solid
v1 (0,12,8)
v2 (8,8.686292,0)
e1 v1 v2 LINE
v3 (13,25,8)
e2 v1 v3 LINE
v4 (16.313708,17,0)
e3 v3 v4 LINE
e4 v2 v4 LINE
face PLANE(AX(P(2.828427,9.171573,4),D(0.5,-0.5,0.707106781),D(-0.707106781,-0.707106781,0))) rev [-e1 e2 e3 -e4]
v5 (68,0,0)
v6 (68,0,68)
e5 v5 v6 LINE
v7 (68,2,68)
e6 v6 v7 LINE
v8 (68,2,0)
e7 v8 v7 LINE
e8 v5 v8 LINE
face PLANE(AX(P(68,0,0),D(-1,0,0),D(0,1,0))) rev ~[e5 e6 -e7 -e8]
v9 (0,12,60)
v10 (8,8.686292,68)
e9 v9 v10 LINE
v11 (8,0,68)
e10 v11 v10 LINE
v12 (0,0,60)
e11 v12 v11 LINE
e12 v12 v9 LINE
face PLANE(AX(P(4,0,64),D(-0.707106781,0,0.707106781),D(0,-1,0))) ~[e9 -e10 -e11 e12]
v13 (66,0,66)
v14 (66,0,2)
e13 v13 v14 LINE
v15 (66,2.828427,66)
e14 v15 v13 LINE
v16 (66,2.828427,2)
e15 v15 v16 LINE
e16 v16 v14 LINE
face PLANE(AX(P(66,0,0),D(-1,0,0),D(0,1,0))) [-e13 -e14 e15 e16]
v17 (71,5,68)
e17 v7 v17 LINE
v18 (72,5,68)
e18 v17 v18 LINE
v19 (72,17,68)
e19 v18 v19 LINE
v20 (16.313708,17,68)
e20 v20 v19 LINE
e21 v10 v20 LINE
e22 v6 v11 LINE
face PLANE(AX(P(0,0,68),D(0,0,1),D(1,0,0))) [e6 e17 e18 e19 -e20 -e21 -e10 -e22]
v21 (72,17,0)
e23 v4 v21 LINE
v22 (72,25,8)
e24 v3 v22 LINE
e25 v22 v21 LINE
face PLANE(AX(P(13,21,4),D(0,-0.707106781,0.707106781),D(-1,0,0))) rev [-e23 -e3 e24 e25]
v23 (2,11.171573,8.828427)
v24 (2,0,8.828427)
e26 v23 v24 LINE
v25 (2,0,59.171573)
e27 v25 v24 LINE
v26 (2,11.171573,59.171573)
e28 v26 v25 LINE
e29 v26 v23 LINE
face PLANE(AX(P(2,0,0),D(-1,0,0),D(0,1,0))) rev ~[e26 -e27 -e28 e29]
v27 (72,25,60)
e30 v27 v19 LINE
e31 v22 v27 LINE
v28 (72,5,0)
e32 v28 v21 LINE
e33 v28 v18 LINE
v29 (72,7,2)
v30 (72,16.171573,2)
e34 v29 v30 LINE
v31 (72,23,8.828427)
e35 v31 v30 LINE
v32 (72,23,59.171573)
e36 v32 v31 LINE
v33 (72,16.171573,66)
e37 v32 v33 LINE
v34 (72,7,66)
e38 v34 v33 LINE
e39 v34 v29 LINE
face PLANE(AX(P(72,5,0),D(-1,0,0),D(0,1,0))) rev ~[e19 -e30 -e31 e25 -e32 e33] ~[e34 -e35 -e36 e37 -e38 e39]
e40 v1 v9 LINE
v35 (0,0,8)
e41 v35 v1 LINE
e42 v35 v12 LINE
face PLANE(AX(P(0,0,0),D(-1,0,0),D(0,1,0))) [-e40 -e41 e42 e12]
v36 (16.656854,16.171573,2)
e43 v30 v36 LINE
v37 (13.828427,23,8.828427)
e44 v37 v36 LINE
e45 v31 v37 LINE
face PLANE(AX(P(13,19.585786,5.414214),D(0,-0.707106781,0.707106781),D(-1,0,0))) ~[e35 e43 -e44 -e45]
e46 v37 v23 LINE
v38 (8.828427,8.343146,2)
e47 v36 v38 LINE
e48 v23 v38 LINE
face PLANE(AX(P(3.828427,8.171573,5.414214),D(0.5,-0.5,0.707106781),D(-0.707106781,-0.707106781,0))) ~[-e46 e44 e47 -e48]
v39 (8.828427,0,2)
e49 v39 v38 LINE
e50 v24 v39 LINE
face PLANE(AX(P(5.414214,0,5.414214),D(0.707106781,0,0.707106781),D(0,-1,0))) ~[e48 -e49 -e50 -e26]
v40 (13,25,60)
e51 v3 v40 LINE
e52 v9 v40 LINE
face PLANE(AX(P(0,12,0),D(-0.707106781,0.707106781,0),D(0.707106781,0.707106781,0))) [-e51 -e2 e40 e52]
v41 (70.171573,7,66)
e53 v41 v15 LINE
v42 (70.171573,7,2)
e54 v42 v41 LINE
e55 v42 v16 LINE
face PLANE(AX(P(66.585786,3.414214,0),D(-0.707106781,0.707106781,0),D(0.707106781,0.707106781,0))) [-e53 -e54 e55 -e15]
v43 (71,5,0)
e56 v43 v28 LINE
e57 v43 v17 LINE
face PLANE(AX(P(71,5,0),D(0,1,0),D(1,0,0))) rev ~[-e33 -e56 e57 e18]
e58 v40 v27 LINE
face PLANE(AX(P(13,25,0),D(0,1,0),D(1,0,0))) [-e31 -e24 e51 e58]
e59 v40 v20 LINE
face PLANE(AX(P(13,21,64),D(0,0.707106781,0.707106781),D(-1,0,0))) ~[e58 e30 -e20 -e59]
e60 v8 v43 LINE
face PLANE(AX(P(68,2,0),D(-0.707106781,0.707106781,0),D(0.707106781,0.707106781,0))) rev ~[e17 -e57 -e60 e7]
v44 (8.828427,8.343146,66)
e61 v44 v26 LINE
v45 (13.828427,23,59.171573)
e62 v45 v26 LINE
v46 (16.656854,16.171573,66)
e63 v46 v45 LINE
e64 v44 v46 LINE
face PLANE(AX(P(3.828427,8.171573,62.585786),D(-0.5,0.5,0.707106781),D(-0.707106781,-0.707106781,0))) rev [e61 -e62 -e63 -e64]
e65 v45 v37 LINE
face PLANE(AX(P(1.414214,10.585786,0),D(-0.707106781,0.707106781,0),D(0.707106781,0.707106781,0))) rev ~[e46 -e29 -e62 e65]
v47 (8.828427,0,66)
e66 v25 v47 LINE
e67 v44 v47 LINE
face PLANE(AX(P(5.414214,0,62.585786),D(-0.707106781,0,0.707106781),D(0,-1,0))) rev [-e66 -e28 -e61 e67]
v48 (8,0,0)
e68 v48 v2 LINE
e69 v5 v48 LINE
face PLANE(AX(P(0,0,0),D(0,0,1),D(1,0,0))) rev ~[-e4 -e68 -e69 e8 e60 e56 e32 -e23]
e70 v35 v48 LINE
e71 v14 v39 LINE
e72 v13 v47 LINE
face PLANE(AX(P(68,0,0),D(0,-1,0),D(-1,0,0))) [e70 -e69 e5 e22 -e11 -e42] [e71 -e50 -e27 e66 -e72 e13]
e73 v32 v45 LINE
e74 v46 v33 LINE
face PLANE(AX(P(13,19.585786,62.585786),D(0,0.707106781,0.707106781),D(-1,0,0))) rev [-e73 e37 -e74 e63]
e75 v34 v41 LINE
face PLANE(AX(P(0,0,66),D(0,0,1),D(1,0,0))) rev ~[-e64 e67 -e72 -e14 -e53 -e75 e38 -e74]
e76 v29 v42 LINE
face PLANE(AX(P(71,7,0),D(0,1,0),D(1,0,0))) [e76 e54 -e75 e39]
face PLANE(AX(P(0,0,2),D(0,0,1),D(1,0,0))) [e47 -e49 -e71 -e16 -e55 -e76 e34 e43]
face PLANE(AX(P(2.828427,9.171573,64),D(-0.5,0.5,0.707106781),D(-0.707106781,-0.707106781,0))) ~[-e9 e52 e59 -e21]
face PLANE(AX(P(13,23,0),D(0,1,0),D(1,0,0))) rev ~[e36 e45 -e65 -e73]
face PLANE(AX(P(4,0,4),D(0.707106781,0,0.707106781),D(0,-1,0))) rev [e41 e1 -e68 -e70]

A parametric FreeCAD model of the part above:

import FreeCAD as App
import Part
import Sketcher

V = App.Vector
Q = App.Units.Quantity


def edges_at(feature, points):
    """Names of the edges that pass closest to the given points."""
    edges = feature.Shape.Edges
    near = lambda p: min(range(len(edges)), key=lambda i: edges[i].distToShape(Part.Vertex(*p))[0])
    return sorted({f"Edge{near(p) + 1}" for p in points})


def faces_at(feature, points):
    """Names of the faces that lie closest to the given points."""
    faces = feature.Shape.Faces
    near = lambda p: min(range(len(faces)), key=lambda i: faces[i].distToShape(Part.Vertex(*p))[0])
    return sorted({f"Face{near(p) + 1}" for p in points})

doc = App.newDocument("Part")
body = doc.addObject("PartDesign::Body", "Body")

sketch1 = body.newObject("Sketcher::SketchObject", "Sketch")
sketch1.AttachmentSupport = (doc.getObject("XY_Plane"), [""])
sketch1.MapMode = "FlatFace"
sketch1.addGeometry([
    Part.LineSegment(V(0, 12, 0), V(0, 0, 0)),
    Part.LineSegment(V(0, 0, 0), V(68, 0, 0)),
    Part.LineSegment(V(68, 0, 0), V(68, 2, 0)),
    Part.LineSegment(V(68, 2, 0), V(71, 5, 0)),
    Part.LineSegment(V(71, 5, 0), V(72, 5, 0)),
    Part.LineSegment(V(72, 5, 0), V(72, 25, 0)),
    Part.LineSegment(V(72, 25, 0), V(13, 25, 0)),
    Part.LineSegment(V(13, 25, 0), V(0, 12, 0)),
], False)
sketch1.addConstraint([
    Sketcher.Constraint("Coincident", 0, 2, 1, 1),
    Sketcher.Constraint("Coincident", 1, 2, 2, 1),
    Sketcher.Constraint("Coincident", 2, 2, 3, 1),
    Sketcher.Constraint("Coincident", 3, 2, 4, 1),
    Sketcher.Constraint("Coincident", 4, 2, 5, 1),
    Sketcher.Constraint("Coincident", 5, 2, 6, 1),
    Sketcher.Constraint("Coincident", 6, 2, 7, 1),
    Sketcher.Constraint("Coincident", 7, 2, 0, 1),
    Sketcher.Constraint("Vertical", 0),
    Sketcher.Constraint("Horizontal", 1),
    Sketcher.Constraint("Vertical", 2),
    Sketcher.Constraint("Horizontal", 4),
    Sketcher.Constraint("Vertical", 5),
    Sketcher.Constraint("Horizontal", 6),
    Sketcher.Constraint("Coincident", 0, 2, -1, 1),
    Sketcher.Constraint("Parallel", 3, 7),
    Sketcher.Constraint("DistanceX", 1, 1, 1, 2, 68.0),
    Sketcher.Constraint("DistanceY", 0, 2, 0, 1, 12.0),
    Sketcher.Constraint("DistanceY", 2, 1, 2, 2, 2.0),
    Sketcher.Constraint("Angle", 3, Q("45 deg")),
    Sketcher.Constraint("DistanceY", -1, 1, 3, 2, 5.0),
    Sketcher.Constraint("DistanceY", -1, 1, 5, 2, 25.0),
    Sketcher.Constraint("DistanceX", 4, 1, 4, 2, 1.0),
])
pad1 = body.newObject("PartDesign::Pad", "Pad")
pad1.Profile = sketch1
pad1.Length = 68
doc.recompute()

chamfer = body.newObject("PartDesign::Chamfer", "Chamfer")
chamfer.Base = (pad1, edges_at(pad1, [
    (0, 6, 68),
    (6.5, 18.5, 68),
    (42.5, 25, 68),
    (0, 6, 0),
    (6.5, 18.5, 0),
    (42.5, 25, 0),
]))
chamfer.Size = 8
doc.recompute()

thickness = body.newObject("PartDesign::Thickness", "Thickness")
thickness.Base = (chamfer, faces_at(chamfer, [(48, 0, 45.333), (72, 11.667, 25.333)]))
thickness.Value = 2
thickness.Reversed = True
thickness.Join = "Intersection"

doc.recompute()
